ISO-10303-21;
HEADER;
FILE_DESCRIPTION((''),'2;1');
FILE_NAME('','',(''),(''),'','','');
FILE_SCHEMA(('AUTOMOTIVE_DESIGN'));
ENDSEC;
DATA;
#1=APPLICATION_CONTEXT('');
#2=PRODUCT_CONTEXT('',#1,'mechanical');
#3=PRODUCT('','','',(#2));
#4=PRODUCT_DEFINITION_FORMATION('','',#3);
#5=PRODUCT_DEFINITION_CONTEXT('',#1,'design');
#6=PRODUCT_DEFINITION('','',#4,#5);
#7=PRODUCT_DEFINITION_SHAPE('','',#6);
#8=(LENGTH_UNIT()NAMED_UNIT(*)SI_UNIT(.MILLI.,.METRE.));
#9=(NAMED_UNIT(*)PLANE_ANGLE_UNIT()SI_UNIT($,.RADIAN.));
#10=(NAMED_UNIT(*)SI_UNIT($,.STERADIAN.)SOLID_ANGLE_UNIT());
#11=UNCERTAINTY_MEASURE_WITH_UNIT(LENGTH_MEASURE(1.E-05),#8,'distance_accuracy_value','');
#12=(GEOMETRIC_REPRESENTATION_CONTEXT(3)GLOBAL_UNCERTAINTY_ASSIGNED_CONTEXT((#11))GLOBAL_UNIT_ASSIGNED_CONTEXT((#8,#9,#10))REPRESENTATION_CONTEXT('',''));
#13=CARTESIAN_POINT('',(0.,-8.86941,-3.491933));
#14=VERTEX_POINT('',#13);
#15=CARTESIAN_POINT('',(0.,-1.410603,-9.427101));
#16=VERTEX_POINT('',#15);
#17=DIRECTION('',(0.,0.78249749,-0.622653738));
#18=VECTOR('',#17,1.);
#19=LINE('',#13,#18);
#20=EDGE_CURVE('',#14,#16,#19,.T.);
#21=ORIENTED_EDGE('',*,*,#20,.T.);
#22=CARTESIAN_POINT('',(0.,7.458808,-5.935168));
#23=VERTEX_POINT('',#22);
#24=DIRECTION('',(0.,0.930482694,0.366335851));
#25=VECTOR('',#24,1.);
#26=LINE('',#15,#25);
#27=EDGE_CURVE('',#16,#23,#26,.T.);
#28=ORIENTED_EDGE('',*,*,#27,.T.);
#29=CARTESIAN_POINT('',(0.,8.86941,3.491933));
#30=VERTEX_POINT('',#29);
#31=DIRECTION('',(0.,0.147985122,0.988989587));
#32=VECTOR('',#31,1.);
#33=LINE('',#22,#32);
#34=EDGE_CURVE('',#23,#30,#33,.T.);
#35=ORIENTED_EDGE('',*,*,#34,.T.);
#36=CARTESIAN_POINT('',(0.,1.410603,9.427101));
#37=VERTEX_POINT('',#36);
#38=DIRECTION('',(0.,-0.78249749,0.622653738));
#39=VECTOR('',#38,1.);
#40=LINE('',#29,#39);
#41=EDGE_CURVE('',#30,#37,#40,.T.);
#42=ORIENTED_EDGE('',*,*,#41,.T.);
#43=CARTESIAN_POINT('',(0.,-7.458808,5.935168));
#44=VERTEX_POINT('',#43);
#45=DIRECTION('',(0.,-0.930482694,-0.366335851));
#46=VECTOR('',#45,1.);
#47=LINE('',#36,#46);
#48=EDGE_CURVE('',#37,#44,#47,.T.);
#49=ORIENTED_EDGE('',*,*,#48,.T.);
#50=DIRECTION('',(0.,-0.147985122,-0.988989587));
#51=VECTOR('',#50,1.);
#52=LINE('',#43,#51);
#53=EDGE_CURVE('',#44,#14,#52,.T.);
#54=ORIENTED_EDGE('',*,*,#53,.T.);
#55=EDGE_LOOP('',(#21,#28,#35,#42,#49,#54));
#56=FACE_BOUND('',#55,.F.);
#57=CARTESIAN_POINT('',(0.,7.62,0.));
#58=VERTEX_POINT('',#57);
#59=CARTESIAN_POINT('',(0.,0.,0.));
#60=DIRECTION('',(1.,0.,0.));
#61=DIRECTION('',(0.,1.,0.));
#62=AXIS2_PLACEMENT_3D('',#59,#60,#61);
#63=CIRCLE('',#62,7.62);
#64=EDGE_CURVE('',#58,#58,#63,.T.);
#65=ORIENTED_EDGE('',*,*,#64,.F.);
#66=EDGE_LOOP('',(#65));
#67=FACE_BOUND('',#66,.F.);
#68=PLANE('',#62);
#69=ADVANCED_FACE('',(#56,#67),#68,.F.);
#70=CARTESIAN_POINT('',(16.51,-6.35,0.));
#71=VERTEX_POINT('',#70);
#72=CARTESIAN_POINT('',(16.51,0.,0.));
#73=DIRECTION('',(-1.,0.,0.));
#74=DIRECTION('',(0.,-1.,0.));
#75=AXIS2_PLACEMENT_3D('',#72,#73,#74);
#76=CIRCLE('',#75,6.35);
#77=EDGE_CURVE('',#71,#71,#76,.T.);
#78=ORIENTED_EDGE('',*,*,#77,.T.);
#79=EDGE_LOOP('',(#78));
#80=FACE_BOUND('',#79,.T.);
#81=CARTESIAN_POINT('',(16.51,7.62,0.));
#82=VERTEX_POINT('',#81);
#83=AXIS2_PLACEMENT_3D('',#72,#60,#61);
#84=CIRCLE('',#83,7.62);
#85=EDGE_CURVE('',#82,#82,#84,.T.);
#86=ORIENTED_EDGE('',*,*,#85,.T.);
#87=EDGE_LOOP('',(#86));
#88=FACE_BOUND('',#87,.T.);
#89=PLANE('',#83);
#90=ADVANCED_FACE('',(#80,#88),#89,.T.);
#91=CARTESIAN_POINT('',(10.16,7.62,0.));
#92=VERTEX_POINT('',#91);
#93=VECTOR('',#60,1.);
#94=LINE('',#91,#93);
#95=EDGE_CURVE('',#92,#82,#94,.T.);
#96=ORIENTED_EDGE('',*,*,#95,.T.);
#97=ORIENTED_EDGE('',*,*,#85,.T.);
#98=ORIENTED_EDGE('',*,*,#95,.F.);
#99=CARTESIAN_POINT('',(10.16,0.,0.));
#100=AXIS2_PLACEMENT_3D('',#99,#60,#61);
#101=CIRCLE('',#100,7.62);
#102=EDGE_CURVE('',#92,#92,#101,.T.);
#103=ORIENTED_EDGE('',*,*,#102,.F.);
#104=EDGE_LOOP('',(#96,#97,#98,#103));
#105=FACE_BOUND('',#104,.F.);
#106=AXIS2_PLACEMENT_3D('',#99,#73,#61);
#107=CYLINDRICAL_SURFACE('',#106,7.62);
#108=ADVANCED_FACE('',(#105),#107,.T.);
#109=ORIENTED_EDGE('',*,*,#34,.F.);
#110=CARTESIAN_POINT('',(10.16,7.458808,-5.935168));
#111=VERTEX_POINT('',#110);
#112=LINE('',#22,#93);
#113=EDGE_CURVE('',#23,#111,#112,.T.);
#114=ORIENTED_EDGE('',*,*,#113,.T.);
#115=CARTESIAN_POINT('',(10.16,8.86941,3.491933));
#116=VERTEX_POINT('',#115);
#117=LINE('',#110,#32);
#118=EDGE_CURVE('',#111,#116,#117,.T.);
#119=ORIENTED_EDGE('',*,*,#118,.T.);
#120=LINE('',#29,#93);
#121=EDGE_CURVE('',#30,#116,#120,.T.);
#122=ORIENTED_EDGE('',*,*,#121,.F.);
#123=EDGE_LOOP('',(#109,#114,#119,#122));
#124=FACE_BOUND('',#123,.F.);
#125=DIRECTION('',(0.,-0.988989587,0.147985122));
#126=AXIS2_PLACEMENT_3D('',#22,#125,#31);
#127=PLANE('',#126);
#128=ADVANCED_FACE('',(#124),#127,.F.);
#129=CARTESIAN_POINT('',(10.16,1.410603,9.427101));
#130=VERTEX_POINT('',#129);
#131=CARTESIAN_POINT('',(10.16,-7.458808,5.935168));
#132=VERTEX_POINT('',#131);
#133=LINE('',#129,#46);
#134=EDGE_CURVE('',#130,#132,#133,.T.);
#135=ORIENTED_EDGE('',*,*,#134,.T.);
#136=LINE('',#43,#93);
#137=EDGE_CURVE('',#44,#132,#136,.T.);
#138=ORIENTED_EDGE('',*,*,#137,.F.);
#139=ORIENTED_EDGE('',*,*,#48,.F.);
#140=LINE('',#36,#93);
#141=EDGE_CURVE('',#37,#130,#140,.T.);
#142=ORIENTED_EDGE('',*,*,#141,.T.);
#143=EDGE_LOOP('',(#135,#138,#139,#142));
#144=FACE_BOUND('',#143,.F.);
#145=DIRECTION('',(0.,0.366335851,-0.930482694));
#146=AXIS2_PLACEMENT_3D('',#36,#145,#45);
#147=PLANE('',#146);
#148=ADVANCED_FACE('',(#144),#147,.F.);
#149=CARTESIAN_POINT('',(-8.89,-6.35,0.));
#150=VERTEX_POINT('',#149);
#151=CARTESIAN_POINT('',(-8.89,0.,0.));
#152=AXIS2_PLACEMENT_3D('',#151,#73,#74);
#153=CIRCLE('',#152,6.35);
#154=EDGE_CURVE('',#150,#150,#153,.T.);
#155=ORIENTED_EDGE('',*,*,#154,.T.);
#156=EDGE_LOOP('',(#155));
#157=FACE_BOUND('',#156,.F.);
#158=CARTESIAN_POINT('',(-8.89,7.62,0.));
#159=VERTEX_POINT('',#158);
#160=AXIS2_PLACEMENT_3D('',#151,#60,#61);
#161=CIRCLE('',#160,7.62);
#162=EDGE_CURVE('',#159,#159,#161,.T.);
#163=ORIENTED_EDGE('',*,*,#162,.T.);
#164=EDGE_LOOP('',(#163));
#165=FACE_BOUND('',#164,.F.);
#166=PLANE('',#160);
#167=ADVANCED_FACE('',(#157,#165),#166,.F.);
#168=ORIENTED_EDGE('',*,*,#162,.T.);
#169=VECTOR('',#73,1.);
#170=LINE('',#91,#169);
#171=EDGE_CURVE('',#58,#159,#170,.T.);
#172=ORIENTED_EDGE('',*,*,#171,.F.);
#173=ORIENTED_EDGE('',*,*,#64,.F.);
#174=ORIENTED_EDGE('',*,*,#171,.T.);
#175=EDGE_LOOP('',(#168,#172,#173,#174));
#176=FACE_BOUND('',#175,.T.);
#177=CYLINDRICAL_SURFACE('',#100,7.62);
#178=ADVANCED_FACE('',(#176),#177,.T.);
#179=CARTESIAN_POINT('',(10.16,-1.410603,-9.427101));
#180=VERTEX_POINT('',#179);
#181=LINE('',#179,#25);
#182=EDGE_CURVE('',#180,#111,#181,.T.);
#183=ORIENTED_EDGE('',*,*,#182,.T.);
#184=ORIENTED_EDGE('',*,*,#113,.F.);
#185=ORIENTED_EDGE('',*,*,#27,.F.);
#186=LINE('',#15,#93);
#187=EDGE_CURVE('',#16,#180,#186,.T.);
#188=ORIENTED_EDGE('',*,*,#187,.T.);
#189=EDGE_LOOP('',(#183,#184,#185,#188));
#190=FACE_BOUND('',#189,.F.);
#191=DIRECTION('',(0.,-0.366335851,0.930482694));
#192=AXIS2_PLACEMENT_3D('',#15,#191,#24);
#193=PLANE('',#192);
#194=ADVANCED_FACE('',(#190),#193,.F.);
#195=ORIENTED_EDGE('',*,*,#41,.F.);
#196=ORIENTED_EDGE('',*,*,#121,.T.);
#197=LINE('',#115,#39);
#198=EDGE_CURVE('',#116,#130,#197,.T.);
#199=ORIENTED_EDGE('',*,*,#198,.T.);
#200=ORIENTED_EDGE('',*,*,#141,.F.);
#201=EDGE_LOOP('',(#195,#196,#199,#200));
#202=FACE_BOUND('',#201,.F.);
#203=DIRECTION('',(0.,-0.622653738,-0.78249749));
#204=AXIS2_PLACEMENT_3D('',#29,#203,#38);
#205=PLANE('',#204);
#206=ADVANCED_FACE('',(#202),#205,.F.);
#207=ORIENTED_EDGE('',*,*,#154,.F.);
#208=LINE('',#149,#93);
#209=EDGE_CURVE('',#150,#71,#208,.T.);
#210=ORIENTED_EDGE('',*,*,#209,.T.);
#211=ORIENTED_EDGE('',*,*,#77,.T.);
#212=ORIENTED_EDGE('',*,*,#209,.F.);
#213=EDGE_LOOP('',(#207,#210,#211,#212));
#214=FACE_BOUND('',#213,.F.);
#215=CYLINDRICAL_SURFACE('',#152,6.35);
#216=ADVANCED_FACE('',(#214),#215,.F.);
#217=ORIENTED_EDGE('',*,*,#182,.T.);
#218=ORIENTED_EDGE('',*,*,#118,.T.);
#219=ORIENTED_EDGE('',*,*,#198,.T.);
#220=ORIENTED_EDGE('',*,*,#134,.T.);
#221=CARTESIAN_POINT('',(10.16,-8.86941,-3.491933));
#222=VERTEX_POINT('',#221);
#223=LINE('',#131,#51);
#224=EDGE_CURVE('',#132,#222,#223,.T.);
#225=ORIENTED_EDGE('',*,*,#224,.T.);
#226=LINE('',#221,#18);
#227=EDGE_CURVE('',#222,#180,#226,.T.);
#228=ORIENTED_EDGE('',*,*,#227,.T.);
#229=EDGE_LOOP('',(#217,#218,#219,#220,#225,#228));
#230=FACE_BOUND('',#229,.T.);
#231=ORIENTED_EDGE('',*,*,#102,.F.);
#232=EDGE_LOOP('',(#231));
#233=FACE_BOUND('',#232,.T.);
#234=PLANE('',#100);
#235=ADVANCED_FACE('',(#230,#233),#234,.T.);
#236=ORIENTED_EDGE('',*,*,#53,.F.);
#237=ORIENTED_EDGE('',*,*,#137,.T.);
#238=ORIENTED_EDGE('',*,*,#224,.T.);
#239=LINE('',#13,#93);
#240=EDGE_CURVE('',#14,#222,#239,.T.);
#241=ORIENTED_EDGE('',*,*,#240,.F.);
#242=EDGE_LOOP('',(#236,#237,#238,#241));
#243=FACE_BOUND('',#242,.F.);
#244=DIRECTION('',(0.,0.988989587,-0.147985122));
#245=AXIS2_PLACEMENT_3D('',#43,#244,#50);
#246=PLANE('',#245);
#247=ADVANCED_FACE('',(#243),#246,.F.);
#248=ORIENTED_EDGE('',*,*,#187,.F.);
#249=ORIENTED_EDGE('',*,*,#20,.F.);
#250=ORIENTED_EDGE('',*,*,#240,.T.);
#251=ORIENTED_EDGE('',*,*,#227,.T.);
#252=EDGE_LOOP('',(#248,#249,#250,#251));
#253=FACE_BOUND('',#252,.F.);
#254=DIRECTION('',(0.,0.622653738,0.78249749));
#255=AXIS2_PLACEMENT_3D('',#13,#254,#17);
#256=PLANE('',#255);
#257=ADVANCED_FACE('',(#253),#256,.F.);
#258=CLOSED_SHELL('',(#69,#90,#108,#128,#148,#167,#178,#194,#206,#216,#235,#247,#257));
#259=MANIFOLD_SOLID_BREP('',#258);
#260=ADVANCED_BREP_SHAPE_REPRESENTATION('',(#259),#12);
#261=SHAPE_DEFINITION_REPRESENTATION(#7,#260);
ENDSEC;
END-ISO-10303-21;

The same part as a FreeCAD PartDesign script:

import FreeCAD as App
import Part
import Sketcher
Q = App.Units.Quantity

doc = App.newDocument("Part")
params = doc.addObject("Spreadsheet::Sheet", "Params")
for row, (alias, value) in enumerate([
    ("pad1_length", "0.4 in"),
    ("sketch2_diameter", "0.6 in"),
    ("pad2_length", "0.25 in"),
    ("pad2_length2", "0.75 in"),
    ("sketch3_diameter", "0.5 in"),
], start=1):
    params.set(f"A{row}", alias)
    params.set(f"B{row}", "=" + value)
    params.setAlias(f"B{row}", alias)

body = doc.addObject("PartDesign::Body", "Body")

# Sketch on YZ plane
sketch1 = body.newObject("Sketcher::SketchObject", "Sketch")
sketch1.AttachmentSupport = (doc.getObject("YZ_Plane"), [""])
sketch1.MapMode = "FlatFace"
sketch1.addGeometry([
    Part.LineSegment(App.Vector(1, 9, 0), App.Vector(-7, 6, 0)),  # 0
    Part.LineSegment(App.Vector(-7, 6, 0), App.Vector(-9, -3, 0)),  # 1
    Part.LineSegment(App.Vector(-9, -3, 0), App.Vector(-1, -9, 0)),  # 2
    Part.LineSegment(App.Vector(-1, -9, 0), App.Vector(7, -6, 0)),  # 3
    Part.LineSegment(App.Vector(7, -6, 0), App.Vector(9, 3, 0)),  # 4
    Part.LineSegment(App.Vector(9, 3, 0), App.Vector(1, 9, 0)),  # 5
], False)
sketch1.addConstraint([
    Sketcher.Constraint("Coincident", 0, 2, 1, 1),
    Sketcher.Constraint("Coincident", 1, 2, 2, 1),
    Sketcher.Constraint("Coincident", 2, 2, 3, 1),
    Sketcher.Constraint("Coincident", 3, 2, 4, 1),
    Sketcher.Constraint("Coincident", 4, 2, 5, 1),
    Sketcher.Constraint("Coincident", 5, 2, 0, 1),
    Sketcher.Constraint("Symmetric", 0, 2, 3, 2, -1, 1),
    Sketcher.Constraint("Symmetric", 1, 2, 4, 2, -1, 1),
    Sketcher.Constraint("Symmetric", 2, 2, 5, 2, -1, 1),
    Sketcher.Constraint("Equal", 0, 1),
    Sketcher.Constraint("Equal", 1, 2),
    Sketcher.Constraint("DistanceY", 2, 2, -1, 1, Q("9.427101 mm")),
    Sketcher.Constraint("DistanceX", 1, 2, 0, 2, Q("1.410602 mm")),
    Sketcher.Constraint("DistanceY", 1, 2, 0, 2, Q("9.427101 mm")),
    Sketcher.Constraint("DistanceX", 0, 2, -1, 1, Q("7.458808 mm")),
])
pad1 = body.newObject("PartDesign::Pad", "Pad")
pad1.Profile = sketch1
pad1.setExpression("Length", "Params.pad1_length")

# Sketch on YZ plane
sketch2 = body.newObject("Sketcher::SketchObject", "Sketch001")
sketch2.AttachmentSupport = (doc.getObject("YZ_Plane"), [""])
sketch2.MapMode = "FlatFace"
sketch2.AttachmentOffset = App.Placement(App.Vector(0, 0, 0.4 * 25.4), App.Rotation())
sketch2.addGeometry(Part.Circle(App.Vector(0, 0, 0), App.Vector(0, 0, 1), 8), False)
sketch2.addConstraint([
    Sketcher.Constraint("Coincident", 0, 3, -1, 1),
    Sketcher.Constraint("Diameter", 0, Q("0.6 in")),
])
sketch2.setExpression("Constraints[1]", "Params.sketch2_diameter")
pad2 = body.newObject("PartDesign::Pad", "Pad001")
pad2.Profile = sketch2
pad2.Type = "TwoLengths"
pad2.setExpression("Length", "Params.pad2_length")
pad2.setExpression("Length2", "Params.pad2_length2")

# Sketch on YZ plane
sketch3 = body.newObject("Sketcher::SketchObject", "Sketch002")
sketch3.AttachmentSupport = (doc.getObject("YZ_Plane"), [""])
sketch3.MapMode = "FlatFace"
sketch3.AttachmentOffset = App.Placement(App.Vector(0, 0, -0.35 * 25.4), App.Rotation())
sketch3.addGeometry(Part.Circle(App.Vector(0, 0, 0), App.Vector(0, 0, 1), 6), False)
sketch3.addConstraint([
    Sketcher.Constraint("Coincident", 0, 3, -1, 1),
    Sketcher.Constraint("Diameter", 0, Q("0.5 in")),
])
sketch3.setExpression("Constraints[1]", "Params.sketch3_diameter")
pocket1 = body.newObject("PartDesign::Pocket", "Pocket")
pocket1.Profile = sketch3
pocket1.Type = "ThroughAll"
pocket1.Reversed = True

doc.recompute()
